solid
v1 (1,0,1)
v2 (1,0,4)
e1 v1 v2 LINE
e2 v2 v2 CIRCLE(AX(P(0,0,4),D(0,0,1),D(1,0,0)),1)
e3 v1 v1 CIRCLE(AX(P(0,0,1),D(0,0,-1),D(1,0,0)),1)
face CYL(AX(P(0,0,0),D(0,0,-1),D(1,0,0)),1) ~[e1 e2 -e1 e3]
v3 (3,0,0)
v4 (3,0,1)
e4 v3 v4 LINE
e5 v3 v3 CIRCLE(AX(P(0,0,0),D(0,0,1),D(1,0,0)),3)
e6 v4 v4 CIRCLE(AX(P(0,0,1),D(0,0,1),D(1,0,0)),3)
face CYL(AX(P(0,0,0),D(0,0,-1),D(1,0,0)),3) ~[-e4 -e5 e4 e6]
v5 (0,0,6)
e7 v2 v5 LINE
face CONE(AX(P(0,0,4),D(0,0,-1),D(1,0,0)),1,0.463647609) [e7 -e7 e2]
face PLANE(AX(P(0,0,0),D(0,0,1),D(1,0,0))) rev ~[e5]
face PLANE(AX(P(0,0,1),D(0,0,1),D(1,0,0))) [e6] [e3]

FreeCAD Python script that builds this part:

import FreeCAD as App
import Part
import Sketcher

V = App.Vector
Q = App.Units.Quantity

doc = App.newDocument("Part")
body = doc.addObject("PartDesign::Body", "Body")

# Sketch on XY plane
sketch1 = doc.addObject("Sketcher::SketchObject", "Sketch")
body.addObject(sketch1)
sketch1.AttachmentSupport = (doc.XY_Plane, [""])
sketch1.MapMode = "FlatFace"
sketch1.addGeometry(Part.Circle(V(0, 0, 0), V(0, 0, 1), 3), False)
sketch1.addConstraint(Sketcher.Constraint("Coincident", 0, 3, -1, 1))
sketch1.addConstraint(Sketcher.Constraint("Diameter", 0, Q("6 mm")))
pad1 = doc.addObject("PartDesign::Pad", "Pad")
body.addObject(pad1)
pad1.Profile = sketch1
pad1.Length = 1

# Sketch on XY plane
sketch2 = doc.addObject("Sketcher::SketchObject", "Sketch001")
body.addObject(sketch2)
sketch2.AttachmentSupport = (doc.XY_Plane, [""])
sketch2.MapMode = "FlatFace"
sketch2.addGeometry(Part.Circle(V(0, 0, 0), V(0, 0, 1), 1), False)
sketch2.addConstraint(Sketcher.Constraint("Coincident", 0, 3, -1, 1))
sketch2.addConstraint(Sketcher.Constraint("Diameter", 0, Q("2 mm")))
pad2 = doc.addObject("PartDesign::Pad", "Pad001")
body.addObject(pad2)
pad2.Profile = sketch2
pad2.Length = 4

# Sketch on XZ plane
sketch3 = doc.addObject("Sketcher::SketchObject", "Sketch002")
body.addObject(sketch3)
sketch3.AttachmentSupport = (doc.XZ_Plane, [""])
sketch3.MapMode = "FlatFace"
sketch3.addGeometry(Part.LineSegment(V(0, 4, 0), V(1, 4, 0)), False)
sketch3.addGeometry(Part.LineSegment(V(1, 4, 0), V(0, 6, 0)), False)
sketch3.addGeometry(Part.LineSegment(V(0, 6, 0), V(0, 4, 0)), False)
sketch3.addConstraint(Sketcher.Constraint("Coincident", 0, 2, 1, 1))
sketch3.addConstraint(Sketcher.Constraint("Coincident", 1, 2, 2, 1))
sketch3.addConstraint(Sketcher.Constraint("Coincident", 2, 2, 0, 1))
sketch3.addConstraint(Sketcher.Constraint("Horizontal", 0))
sketch3.addConstraint(Sketcher.Constraint("Vertical", 2))
sketch3.addConstraint(Sketcher.Constraint("PointOnObject", 1, 2, -2))
sketch3.addConstraint(Sketcher.Constraint("DistanceX", 0, 1, 0, 2, Q("1 mm")))
sketch3.addConstraint(Sketcher.Constraint("DistanceY", 2, 2, 2, 1, Q("2 mm")))
sketch3.addConstraint(Sketcher.Constraint("DistanceY", -1, 1, 0, 2, Q("4 mm")))
revolution = doc.addObject("PartDesign::Revolution", "Revolution")
body.addObject(revolution)
revolution.Profile = sketch3
revolution.ReferenceAxis = (sketch3, ["V_Axis"])
revolution.Angle = 360

doc.recompute()
